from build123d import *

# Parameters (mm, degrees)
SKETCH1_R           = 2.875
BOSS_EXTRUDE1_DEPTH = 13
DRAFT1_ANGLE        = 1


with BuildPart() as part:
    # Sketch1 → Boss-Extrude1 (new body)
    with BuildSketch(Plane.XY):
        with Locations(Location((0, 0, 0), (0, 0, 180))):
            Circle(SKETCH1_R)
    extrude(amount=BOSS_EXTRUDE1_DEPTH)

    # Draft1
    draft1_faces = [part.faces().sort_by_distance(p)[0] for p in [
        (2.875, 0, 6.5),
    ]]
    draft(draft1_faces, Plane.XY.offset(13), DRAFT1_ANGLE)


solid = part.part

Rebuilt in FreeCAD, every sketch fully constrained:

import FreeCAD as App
import Part
import Sketcher
Q = App.Units.Quantity


def faces_at(feature, points):
    """Names of the faces that lie closest to the given points."""
    faces = feature.Shape.Faces
    near = lambda p: min(range(len(faces)), key=lambda i: faces[i].distToShape(Part.Vertex(*p))[0])
    return sorted({f"Face{near(p) + 1}" for p in points})

doc = App.newDocument("Part")
body = doc.addObject("PartDesign::Body", "Body")

sketch1 = body.newObject("Sketcher::SketchObject", "Sketch")
sketch1.AttachmentSupport = (doc.getObject("XY_Plane"), [""])
sketch1.MapMode = "FlatFace"
sketch1.addGeometry(Part.Circle(App.Vector(0, 0, 0), App.Vector(0, 0, 1), 2.9), False)
sketch1.addConstraint(Sketcher.Constraint("Coincident", 0, 3, -1, 1))
sketch1.addConstraint(Sketcher.Constraint("Diameter", 0, Q("5.75 mm")))
pad1 = body.newObject("PartDesign::Pad", "Pad")
pad1.Profile = sketch1
pad1.Length = 13
doc.recompute()

datumplane = body.newObject("PartDesign::Plane", "DatumPlane")
datumplane.AttachmentSupport = (doc.getObject("XY_Plane"), [""])
datumplane.MapMode = "FlatFace"
datumplane.AttachmentOffset = App.Placement(App.Vector(0, 0, 13), App.Rotation())
draft = body.newObject("PartDesign::Draft", "Draft")
draft.Base = (pad1, faces_at(pad1, [(2.875, 0, 6.5)]))
draft.NeutralPlane = (datumplane, [""])
draft.Angle = 1
draft.Reversed = False

doc.recompute()
